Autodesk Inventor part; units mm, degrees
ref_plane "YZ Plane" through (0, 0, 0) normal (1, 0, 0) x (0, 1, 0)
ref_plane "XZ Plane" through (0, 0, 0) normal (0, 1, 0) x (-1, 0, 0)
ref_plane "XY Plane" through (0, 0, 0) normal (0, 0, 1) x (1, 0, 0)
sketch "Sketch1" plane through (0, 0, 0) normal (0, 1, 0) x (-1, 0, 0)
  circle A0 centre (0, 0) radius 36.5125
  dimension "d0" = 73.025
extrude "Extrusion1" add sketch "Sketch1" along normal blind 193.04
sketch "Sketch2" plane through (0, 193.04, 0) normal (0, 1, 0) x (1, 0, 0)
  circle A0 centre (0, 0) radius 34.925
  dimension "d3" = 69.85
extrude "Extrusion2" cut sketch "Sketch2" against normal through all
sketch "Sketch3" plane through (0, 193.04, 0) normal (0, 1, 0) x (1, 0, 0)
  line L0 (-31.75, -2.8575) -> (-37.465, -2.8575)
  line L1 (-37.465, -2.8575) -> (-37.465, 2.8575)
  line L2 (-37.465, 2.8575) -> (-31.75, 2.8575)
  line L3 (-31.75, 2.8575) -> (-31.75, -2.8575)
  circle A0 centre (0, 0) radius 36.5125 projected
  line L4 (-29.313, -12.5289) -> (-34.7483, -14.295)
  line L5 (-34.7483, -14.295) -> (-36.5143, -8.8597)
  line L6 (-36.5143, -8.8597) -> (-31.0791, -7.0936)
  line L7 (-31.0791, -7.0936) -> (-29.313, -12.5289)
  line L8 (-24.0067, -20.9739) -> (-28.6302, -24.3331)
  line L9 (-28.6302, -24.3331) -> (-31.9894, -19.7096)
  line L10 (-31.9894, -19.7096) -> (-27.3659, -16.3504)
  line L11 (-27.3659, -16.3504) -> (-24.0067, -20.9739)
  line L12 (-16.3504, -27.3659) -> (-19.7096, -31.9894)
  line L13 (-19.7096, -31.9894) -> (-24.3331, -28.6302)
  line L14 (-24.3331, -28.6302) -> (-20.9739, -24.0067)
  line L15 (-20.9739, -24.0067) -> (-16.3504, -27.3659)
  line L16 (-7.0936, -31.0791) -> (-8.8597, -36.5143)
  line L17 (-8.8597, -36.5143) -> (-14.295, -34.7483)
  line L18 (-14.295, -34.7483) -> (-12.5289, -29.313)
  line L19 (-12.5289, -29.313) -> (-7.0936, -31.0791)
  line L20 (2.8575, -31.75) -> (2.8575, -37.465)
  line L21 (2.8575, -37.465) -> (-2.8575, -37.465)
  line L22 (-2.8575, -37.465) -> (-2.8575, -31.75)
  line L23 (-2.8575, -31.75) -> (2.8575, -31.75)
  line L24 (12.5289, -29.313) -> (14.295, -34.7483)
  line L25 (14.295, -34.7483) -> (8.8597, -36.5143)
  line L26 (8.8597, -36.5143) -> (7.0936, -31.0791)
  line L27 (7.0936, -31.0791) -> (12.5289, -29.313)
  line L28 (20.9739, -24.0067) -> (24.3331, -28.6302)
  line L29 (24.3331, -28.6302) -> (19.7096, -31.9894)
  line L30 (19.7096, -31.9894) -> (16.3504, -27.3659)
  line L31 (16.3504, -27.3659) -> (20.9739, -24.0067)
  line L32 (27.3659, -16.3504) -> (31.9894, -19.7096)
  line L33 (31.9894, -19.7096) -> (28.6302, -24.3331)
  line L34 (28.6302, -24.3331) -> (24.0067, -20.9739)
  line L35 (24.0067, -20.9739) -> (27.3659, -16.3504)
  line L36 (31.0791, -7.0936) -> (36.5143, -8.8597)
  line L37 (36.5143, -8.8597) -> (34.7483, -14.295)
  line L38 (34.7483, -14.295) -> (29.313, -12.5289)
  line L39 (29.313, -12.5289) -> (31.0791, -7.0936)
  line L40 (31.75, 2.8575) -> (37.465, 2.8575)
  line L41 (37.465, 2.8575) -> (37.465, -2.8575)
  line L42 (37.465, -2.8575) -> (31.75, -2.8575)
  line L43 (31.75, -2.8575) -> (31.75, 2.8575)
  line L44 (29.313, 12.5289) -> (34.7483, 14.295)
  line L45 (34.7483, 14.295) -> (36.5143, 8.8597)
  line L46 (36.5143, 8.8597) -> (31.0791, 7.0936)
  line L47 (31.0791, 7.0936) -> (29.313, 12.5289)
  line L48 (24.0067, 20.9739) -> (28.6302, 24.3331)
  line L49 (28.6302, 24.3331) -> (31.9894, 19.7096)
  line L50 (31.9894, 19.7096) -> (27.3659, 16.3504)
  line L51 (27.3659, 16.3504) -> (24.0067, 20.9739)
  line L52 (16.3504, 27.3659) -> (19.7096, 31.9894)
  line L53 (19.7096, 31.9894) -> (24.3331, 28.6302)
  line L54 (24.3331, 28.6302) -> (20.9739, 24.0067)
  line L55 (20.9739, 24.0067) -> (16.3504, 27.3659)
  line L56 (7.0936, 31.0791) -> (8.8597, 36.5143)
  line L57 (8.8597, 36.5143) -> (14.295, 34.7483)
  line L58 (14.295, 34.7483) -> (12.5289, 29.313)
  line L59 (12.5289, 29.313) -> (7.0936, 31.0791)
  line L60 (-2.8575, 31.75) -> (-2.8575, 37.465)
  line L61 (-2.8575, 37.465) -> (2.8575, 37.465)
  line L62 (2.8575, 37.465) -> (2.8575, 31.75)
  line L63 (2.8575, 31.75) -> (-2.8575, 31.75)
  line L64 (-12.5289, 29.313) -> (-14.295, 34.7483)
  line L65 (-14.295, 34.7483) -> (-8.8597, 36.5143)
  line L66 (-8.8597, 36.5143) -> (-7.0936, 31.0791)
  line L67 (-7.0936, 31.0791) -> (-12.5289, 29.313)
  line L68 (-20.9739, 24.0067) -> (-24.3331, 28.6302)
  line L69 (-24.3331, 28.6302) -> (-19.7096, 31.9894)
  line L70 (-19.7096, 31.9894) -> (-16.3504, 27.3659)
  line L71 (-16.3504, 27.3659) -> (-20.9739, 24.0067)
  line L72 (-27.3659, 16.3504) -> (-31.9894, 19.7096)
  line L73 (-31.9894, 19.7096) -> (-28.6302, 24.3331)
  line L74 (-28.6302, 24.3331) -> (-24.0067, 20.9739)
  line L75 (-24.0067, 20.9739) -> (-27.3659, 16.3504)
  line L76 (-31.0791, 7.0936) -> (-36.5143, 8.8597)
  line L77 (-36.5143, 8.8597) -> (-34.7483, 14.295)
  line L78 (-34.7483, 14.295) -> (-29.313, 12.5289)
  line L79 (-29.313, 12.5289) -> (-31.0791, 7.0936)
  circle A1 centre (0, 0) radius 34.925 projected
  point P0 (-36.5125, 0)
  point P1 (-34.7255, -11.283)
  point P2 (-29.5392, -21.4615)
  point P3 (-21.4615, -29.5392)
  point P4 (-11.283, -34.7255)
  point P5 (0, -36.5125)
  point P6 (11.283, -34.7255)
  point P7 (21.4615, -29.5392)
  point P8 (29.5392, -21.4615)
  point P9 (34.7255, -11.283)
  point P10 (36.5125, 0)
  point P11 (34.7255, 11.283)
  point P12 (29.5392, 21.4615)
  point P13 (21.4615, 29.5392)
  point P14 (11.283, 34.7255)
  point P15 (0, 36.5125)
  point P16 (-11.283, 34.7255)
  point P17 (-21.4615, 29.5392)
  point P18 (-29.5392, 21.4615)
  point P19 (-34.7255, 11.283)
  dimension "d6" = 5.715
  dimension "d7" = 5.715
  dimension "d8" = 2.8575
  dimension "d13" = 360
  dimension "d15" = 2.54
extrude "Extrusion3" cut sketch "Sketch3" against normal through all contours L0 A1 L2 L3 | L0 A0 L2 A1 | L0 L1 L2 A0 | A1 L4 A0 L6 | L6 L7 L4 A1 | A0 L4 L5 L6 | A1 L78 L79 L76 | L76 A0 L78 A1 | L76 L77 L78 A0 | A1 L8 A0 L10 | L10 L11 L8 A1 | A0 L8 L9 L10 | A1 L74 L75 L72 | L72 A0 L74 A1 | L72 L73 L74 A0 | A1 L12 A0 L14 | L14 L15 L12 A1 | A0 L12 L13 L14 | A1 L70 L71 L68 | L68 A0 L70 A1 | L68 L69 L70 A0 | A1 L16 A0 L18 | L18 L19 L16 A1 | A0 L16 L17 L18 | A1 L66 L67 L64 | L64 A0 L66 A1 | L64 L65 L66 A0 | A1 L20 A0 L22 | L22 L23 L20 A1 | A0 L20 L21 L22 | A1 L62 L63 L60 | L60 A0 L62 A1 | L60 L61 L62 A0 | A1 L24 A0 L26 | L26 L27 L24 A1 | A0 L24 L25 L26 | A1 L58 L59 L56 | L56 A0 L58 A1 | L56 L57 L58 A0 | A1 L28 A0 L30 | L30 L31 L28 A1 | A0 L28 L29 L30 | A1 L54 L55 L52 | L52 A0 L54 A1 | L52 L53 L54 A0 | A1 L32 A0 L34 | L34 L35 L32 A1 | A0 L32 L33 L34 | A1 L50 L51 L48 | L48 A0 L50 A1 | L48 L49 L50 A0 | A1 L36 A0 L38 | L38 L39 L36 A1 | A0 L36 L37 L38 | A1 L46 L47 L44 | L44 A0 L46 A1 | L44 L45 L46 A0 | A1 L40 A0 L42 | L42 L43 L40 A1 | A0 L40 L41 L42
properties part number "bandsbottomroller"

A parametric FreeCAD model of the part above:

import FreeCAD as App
import Part
import Sketcher
Q = App.Units.Quantity

doc = App.newDocument("Part")
body = doc.addObject("PartDesign::Body", "Body")
body.AllowCompound = True

# Sketch on XZ plane
sketch1 = body.newObject("Sketcher::SketchObject", "Sketch")
sketch1.AttachmentSupport = (doc.getObject("XZ_Plane"), [""])
sketch1.MapMode = "FlatFace"
sketch1.addGeometry(Part.Circle(App.Vector(0, 0, 0), App.Vector(0, 0, 1), 37), False)
sketch1.addConstraint([
    Sketcher.Constraint("Coincident", 0, 3, -1, 1),
    Sketcher.Constraint("Diameter", 0, Q("2.875 in")),
])
pad1 = body.newObject("PartDesign::Pad", "Pad")
pad1.Profile = sketch1
pad1.Length = Q("7.6 in")
pad1.Reversed = True

# Sketch on XZ plane
sketch2 = body.newObject("Sketcher::SketchObject", "Sketch001")
sketch2.AttachmentSupport = (doc.getObject("XZ_Plane"), [""])
sketch2.MapMode = "FlatFace"
sketch2.AttachmentOffset = App.Placement(App.Vector(0, 0, -7.6 * 25.4), App.Rotation())
sketch2.addGeometry(Part.Circle(App.Vector(0, 0, 0), App.Vector(0, 0, 1), 35), False)
sketch2.addConstraint([
    Sketcher.Constraint("Coincident", 0, 3, -1, 1),
    Sketcher.Constraint("Diameter", 0, Q("2.75 in")),
])
pocket1 = body.newObject("PartDesign::Pocket", "Pocket")
pocket1.Profile = sketch2
pocket1.Type = "ThroughAll"
pocket1.Reversed = True

# Sketch on XZ plane
sketch3 = body.newObject("Sketcher::SketchObject", "Sketch002")
sketch3.AttachmentSupport = (doc.getObject("XZ_Plane"), [""])
sketch3.MapMode = "FlatFace"
sketch3.AttachmentOffset = App.Placement(App.Vector(0, 0, -7.6 * 25.4), App.Rotation())
sketch3.addGeometry([
    Part.LineSegment(App.Vector(-32, 3, 0), App.Vector(-32, -3, 0)),  # 0
    Part.LineSegment(App.Vector(-32, -3, 0), App.Vector(-37, -3, 0)),  # 1
    Part.LineSegment(App.Vector(-37, -3, 0), App.Vector(-37, 3, 0)),  # 2
    Part.LineSegment(App.Vector(-37, 3, 0), App.Vector(-32, 3, 0)),  # 3
    Part.LineSegment(App.Vector(-29, 13, 0), App.Vector(-31, 7, 0)),  # 4
    Part.LineSegment(App.Vector(-31, 7, 0), App.Vector(-37, 9, 0)),  # 5
    Part.LineSegment(App.Vector(-37, 9, 0), App.Vector(-35, 14, 0)),  # 6
    Part.LineSegment(App.Vector(-35, 14, 0), App.Vector(-29, 13, 0)),  # 7
    Part.LineSegment(App.Vector(-29, -13, 0), App.Vector(-35, -14, 0)),  # 8
    Part.LineSegment(App.Vector(-35, -14, 0), App.Vector(-37, -9, 0)),  # 9
    Part.LineSegment(App.Vector(-37, -9, 0), App.Vector(-31, -7, 0)),  # 10
    Part.LineSegment(App.Vector(-31, -7, 0), App.Vector(-29, -13, 0)),  # 11
    Part.LineSegment(App.Vector(-24, 21, 0), App.Vector(-27, 16, 0)),  # 12
    Part.LineSegment(App.Vector(-27, 16, 0), App.Vector(-32, 20, 0)),  # 13
    Part.LineSegment(App.Vector(-32, 20, 0), App.Vector(-29, 24, 0)),  # 14
    Part.LineSegment(App.Vector(-29, 24, 0), App.Vector(-24, 21, 0)),  # 15
    Part.LineSegment(App.Vector(-24, -21, 0), App.Vector(-29, -24, 0)),  # 16
    Part.LineSegment(App.Vector(-29, -24, 0), App.Vector(-32, -20, 0)),  # 17
    Part.LineSegment(App.Vector(-32, -20, 0), App.Vector(-27, -16, 0)),  # 18
    Part.LineSegment(App.Vector(-27, -16, 0), App.Vector(-24, -21, 0)),  # 19
    Part.LineSegment(App.Vector(-16, 27, 0), App.Vector(-21, 24, 0)),  # 20
    Part.LineSegment(App.Vector(-21, 24, 0), App.Vector(-24, 29, 0)),  # 21
    Part.LineSegment(App.Vector(-24, 29, 0), App.Vector(-20, 32, 0)),  # 22
    Part.LineSegment(App.Vector(-20, 32, 0), App.Vector(-16, 27, 0)),  # 23
    Part.LineSegment(App.Vector(-16, -27, 0), App.Vector(-20, -32, 0)),  # 24
    Part.LineSegment(App.Vector(-20, -32, 0), App.Vector(-24, -29, 0)),  # 25
    Part.LineSegment(App.Vector(-24, -29, 0), App.Vector(-21, -24, 0)),  # 26
    Part.LineSegment(App.Vector(-21, -24, 0), App.Vector(-16, -27, 0)),  # 27
    Part.LineSegment(App.Vector(-7, 31, 0), App.Vector(-13, 29, 0)),  # 28
    Part.LineSegment(App.Vector(-13, 29, 0), App.Vector(-14, 35, 0)),  # 29
    Part.LineSegment(App.Vector(-14, 35, 0), App.Vector(-9, 37, 0)),  # 30
    Part.LineSegment(App.Vector(-9, 37, 0), App.Vector(-7, 31, 0)),  # 31
    Part.LineSegment(App.Vector(-7, -31, 0), App.Vector(-9, -37, 0)),  # 32
    Part.LineSegment(App.Vector(-9, -37, 0), App.Vector(-14, -35, 0)),  # 33
    Part.LineSegment(App.Vector(-14, -35, 0), App.Vector(-13, -29, 0)),  # 34
    Part.LineSegment(App.Vector(-13, -29, 0), App.Vector(-7, -31, 0)),  # 35
    Part.LineSegment(App.Vector(3, 32, 0), App.Vector(-3, 32, 0)),  # 36
    Part.LineSegment(App.Vector(-3, 32, 0), App.Vector(-3, 37, 0)),  # 37
    Part.LineSegment(App.Vector(-3, 37, 0), App.Vector(3, 37, 0)),  # 38
    Part.LineSegment(App.Vector(3, 37, 0), App.Vector(3, 32, 0)),  # 39
    Part.LineSegment(App.Vector(3, -32, 0), App.Vector(3, -37, 0)),  # 40
    Part.LineSegment(App.Vector(3, -37, 0), App.Vector(-3, -37, 0)),  # 41
    Part.LineSegment(App.Vector(-3, -37, 0), App.Vector(-3, -32, 0)),  # 42
    Part.LineSegment(App.Vector(-3, -32, 0), App.Vector(3, -32, 0)),  # 43
    Part.LineSegment(App.Vector(13, 29, 0), App.Vector(7, 31, 0)),  # 44
    Part.LineSegment(App.Vector(7, 31, 0), App.Vector(9, 37, 0)),  # 45
    Part.LineSegment(App.Vector(9, 37, 0), App.Vector(14, 35, 0)),  # 46
    Part.LineSegment(App.Vector(14, 35, 0), App.Vector(13, 29, 0)),  # 47
    Part.LineSegment(App.Vector(13, -29, 0), App.Vector(14, -35, 0)),  # 48
    Part.LineSegment(App.Vector(14, -35, 0), App.Vector(9, -37, 0)),  # 49
    Part.LineSegment(App.Vector(9, -37, 0), App.Vector(7, -31, 0)),  # 50
    Part.LineSegment(App.Vector(7, -31, 0), App.Vector(13, -29, 0)),  # 51
    Part.LineSegment(App.Vector(21, 24, 0), App.Vector(16, 27, 0)),  # 52
    Part.LineSegment(App.Vector(16, 27, 0), App.Vector(20, 32, 0)),  # 53
    Part.LineSegment(App.Vector(20, 32, 0), App.Vector(24, 29, 0)),  # 54
    Part.LineSegment(App.Vector(24, 29, 0), App.Vector(21, 24, 0)),  # 55
    Part.LineSegment(App.Vector(21, -24, 0), App.Vector(24, -29, 0)),  # 56
    Part.LineSegment(App.Vector(24, -29, 0), App.Vector(20, -32, 0)),  # 57
    Part.LineSegment(App.Vector(20, -32, 0), App.Vector(16, -27, 0)),  # 58
    Part.LineSegment(App.Vector(16, -27, 0), App.Vector(21, -24, 0)),  # 59
    Part.LineSegment(App.Vector(27, 16, 0), App.Vector(24, 21, 0)),  # 60
    Part.LineSegment(App.Vector(24, 21, 0), App.Vector(29, 24, 0)),  # 61
    Part.LineSegment(App.Vector(29, 24, 0), App.Vector(32, 20, 0)),  # 62
    Part.LineSegment(App.Vector(32, 20, 0), App.Vector(27, 16, 0)),  # 63
    Part.LineSegment(App.Vector(27, -16, 0), App.Vector(32, -20, 0)),  # 64
    Part.LineSegment(App.Vector(32, -20, 0), App.Vector(29, -24, 0)),  # 65
    Part.LineSegment(App.Vector(29, -24, 0), App.Vector(24, -21, 0)),  # 66
    Part.LineSegment(App.Vector(24, -21, 0), App.Vector(27, -16, 0)),  # 67
    Part.LineSegment(App.Vector(31, 7, 0), App.Vector(29, 13, 0)),  # 68
    Part.LineSegment(App.Vector(29, 13, 0), App.Vector(35, 14, 0)),  # 69
    Part.LineSegment(App.Vector(35, 14, 0), App.Vector(37, 9, 0)),  # 70
    Part.LineSegment(App.Vector(37, 9, 0), App.Vector(31, 7, 0)),  # 71
    Part.LineSegment(App.Vector(31, -7, 0), App.Vector(37, -9, 0)),  # 72
    Part.LineSegment(App.Vector(37, -9, 0), App.Vector(35, -14, 0)),  # 73
    Part.LineSegment(App.Vector(35, -14, 0), App.Vector(29, -13, 0)),  # 74
    Part.LineSegment(App.Vector(29, -13, 0), App.Vector(31, -7, 0)),  # 75
    Part.LineSegment(App.Vector(32, -3, 0), App.Vector(32, 3, 0)),  # 76
    Part.LineSegment(App.Vector(32, 3, 0), App.Vector(37, 3, 0)),  # 77
    Part.LineSegment(App.Vector(37, 3, 0), App.Vector(37, -3, 0)),  # 78
    Part.LineSegment(App.Vector(37, -3, 0), App.Vector(32, -3, 0)),  # 79
], False)
sketch3.addConstraint([
    Sketcher.Constraint("Coincident", 0, 2, 1, 1),
    Sketcher.Constraint("Coincident", 1, 2, 2, 1),
    Sketcher.Constraint("Coincident", 2, 2, 3, 1),
    Sketcher.Constraint("Coincident", 3, 2, 0, 1),
    Sketcher.Constraint("Coincident", 4, 2, 5, 1),
    Sketcher.Constraint("Coincident", 5, 2, 6, 1),
    Sketcher.Constraint("Coincident", 6, 2, 7, 1),
    Sketcher.Constraint("Coincident", 7, 2, 4, 1),
    Sketcher.Constraint("Coincident", 8, 2, 9, 1),
    Sketcher.Constraint("Coincident", 9, 2, 10, 1),
    Sketcher.Constraint("Coincident", 10, 2, 11, 1),
    Sketcher.Constraint("Coincident", 11, 2, 8, 1),
    Sketcher.Constraint("Coincident", 12, 2, 13, 1),
    Sketcher.Constraint("Coincident", 13, 2, 14, 1),
    Sketcher.Constraint("Coincident", 14, 2, 15, 1),
    Sketcher.Constraint("Coincident", 15, 2, 12, 1),
    Sketcher.Constraint("Coincident", 16, 2, 17, 1),
    Sketcher.Constraint("Coincident", 17, 2, 18, 1),
    Sketcher.Constraint("Coincident", 18, 2, 19, 1),
    Sketcher.Constraint("Coincident", 19, 2, 16, 1),
    Sketcher.Constraint("Coincident", 20, 2, 21, 1),
    Sketcher.Constraint("Coincident", 21, 2, 22, 1),
    Sketcher.Constraint("Coincident", 22, 2, 23, 1),
    Sketcher.Constraint("Coincident", 23, 2, 20, 1),
    Sketcher.Constraint("Coincident", 24, 2, 25, 1),
    Sketcher.Constraint("Coincident", 25, 2, 26, 1),
    Sketcher.Constraint("Coincident", 26, 2, 27, 1),
    Sketcher.Constraint("Coincident", 27, 2, 24, 1),
    Sketcher.Constraint("Coincident", 28, 2, 29, 1),
    Sketcher.Constraint("Coincident", 29, 2, 30, 1),
    Sketcher.Constraint("Coincident", 30, 2, 31, 1),
    Sketcher.Constraint("Coincident", 31, 2, 28, 1),
    Sketcher.Constraint("Coincident", 32, 2, 33, 1),
    Sketcher.Constraint("Coincident", 33, 2, 34, 1),
    Sketcher.Constraint("Coincident", 34, 2, 35, 1),
    Sketcher.Constraint("Coincident", 35, 2, 32, 1),
    Sketcher.Constraint("Coincident", 36, 2, 37, 1),
    Sketcher.Constraint("Coincident", 37, 2, 38, 1),
    Sketcher.Constraint("Coincident", 38, 2, 39, 1),
    Sketcher.Constraint("Coincident", 39, 2, 36, 1),
    Sketcher.Constraint("Coincident", 40, 2, 41, 1),
    Sketcher.Constraint("Coincident", 41, 2, 42, 1),
    Sketcher.Constraint("Coincident", 42, 2, 43, 1),
    Sketcher.Constraint("Coincident", 43, 2, 40, 1),
    Sketcher.Constraint("Coincident", 44, 2, 45, 1),
    Sketcher.Constraint("Coincident", 45, 2, 46, 1),
    Sketcher.Constraint("Coincident", 46, 2, 47, 1),
    Sketcher.Constraint("Coincident", 47, 2, 44, 1),
    Sketcher.Constraint("Coincident", 48, 2, 49, 1),
    Sketcher.Constraint("Coincident", 49, 2, 50, 1),
    Sketcher.Constraint("Coincident", 50, 2, 51, 1),
    Sketcher.Constraint("Coincident", 51, 2, 48, 1),
    Sketcher.Constraint("Coincident", 52, 2, 53, 1),
    Sketcher.Constraint("Coincident", 53, 2, 54, 1),
    Sketcher.Constraint("Coincident", 54, 2, 55, 1),
    Sketcher.Constraint("Coincident", 55, 2, 52, 1),
    Sketcher.Constraint("Coincident", 56, 2, 57, 1),
    Sketcher.Constraint("Coincident", 57, 2, 58, 1),
    Sketcher.Constraint("Coincident", 58, 2, 59, 1),
    Sketcher.Constraint("Coincident", 59, 2, 56, 1),
    Sketcher.Constraint("Coincident", 60, 2, 61, 1),
    Sketcher.Constraint("Coincident", 61, 2, 62, 1),
    Sketcher.Constraint("Coincident", 62, 2, 63, 1),
    Sketcher.Constraint("Coincident", 63, 2, 60, 1),
    Sketcher.Constraint("Coincident", 64, 2, 65, 1),
    Sketcher.Constraint("Coincident", 65, 2, 66, 1),
    Sketcher.Constraint("Coincident", 66, 2, 67, 1),
    Sketcher.Constraint("Coincident", 67, 2, 64, 1),
    Sketcher.Constraint("Coincident", 68, 2, 69, 1),
    Sketcher.Constraint("Coincident", 69, 2, 70, 1),
    Sketcher.Constraint("Coincident", 70, 2, 71, 1),
    Sketcher.Constraint("Coincident", 71, 2, 68, 1),
    Sketcher.Constraint("Coincident", 72, 2, 73, 1),
    Sketcher.Constraint("Coincident", 73, 2, 74, 1),
    Sketcher.Constraint("Coincident", 74, 2, 75, 1),
    Sketcher.Constraint("Coincident", 75, 2, 72, 1),
    Sketcher.Constraint("Coincident", 76, 2, 77, 1),
    Sketcher.Constraint("Coincident", 77, 2, 78, 1),
    Sketcher.Constraint("Coincident", 78, 2, 79, 1),
    Sketcher.Constraint("Coincident", 79, 2, 76, 1),
    Sketcher.Constraint("Vertical", 0),
    Sketcher.Constraint("Horizontal", 1),
    Sketcher.Constraint("Vertical", 2),
    Sketcher.Constraint("Horizontal", 3),
    Sketcher.Constraint("Horizontal", 36),
    Sketcher.Constraint("Vertical", 37),
    Sketcher.Constraint("Horizontal", 38),
    Sketcher.Constraint("Vertical", 39),
    Sketcher.Constraint("Vertical", 40),
    Sketcher.Constraint("Horizontal", 41),
    Sketcher.Constraint("Vertical", 42),
    Sketcher.Constraint("Horizontal", 43),
    Sketcher.Constraint("Vertical", 76),
    Sketcher.Constraint("Horizontal", 77),
    Sketcher.Constraint("Vertical", 78),
    Sketcher.Constraint("Horizontal", 79),
    Sketcher.Constraint("Symmetric", 37, 2, 40, 2, -1, 1),
    Sketcher.Constraint("Symmetric", 39, 2, 42, 2, -1, 1),
    Sketcher.Constraint("Symmetric", 35, 2, 44, 2, -1, 1),
    Sketcher.Constraint("Symmetric", 32, 2, 45, 2, -1, 1),
    Sketcher.Constraint("Symmetric", 33, 2, 46, 2, -1, 1),
    Sketcher.Constraint("Symmetric", 34, 2, 47, 2, -1, 1),
    Sketcher.Constraint("Symmetric", 29, 2, 48, 2, -1, 1),
    Sketcher.Constraint("Symmetric", 30, 2, 49, 2, -1, 1),
    Sketcher.Constraint("Symmetric", 31, 2, 50, 2, -1, 1),
    Sketcher.Constraint("Symmetric", 28, 2, 51, 2, -1, 1),
    Sketcher.Constraint("Symmetric", 27, 2, 52, 2, -1, 1),
    Sketcher.Constraint("Symmetric", 24, 2, 53, 2, -1, 1),
    Sketcher.Constraint("Symmetric", 25, 2, 54, 2, -1, 1),
    Sketcher.Constraint("Symmetric", 26, 2, 55, 2, -1, 1),
    Sketcher.Constraint("Symmetric", 21, 2, 56, 2, -1, 1),
    Sketcher.Constraint("Symmetric", 22, 2, 57, 2, -1, 1),
    Sketcher.Constraint("Symmetric", 23, 2, 58, 2, -1, 1),
    Sketcher.Constraint("Symmetric", 20, 2, 59, 2, -1, 1),
    Sketcher.Constraint("Symmetric", 19, 2, 60, 2, -1, 1),
    Sketcher.Constraint("Symmetric", 16, 2, 61, 2, -1, 1),
    Sketcher.Constraint("Symmetric", 17, 2, 62, 2, -1, 1),
    Sketcher.Constraint("Symmetric", 18, 2, 63, 2, -1, 1),
    Sketcher.Constraint("Symmetric", 13, 2, 64, 2, -1, 1),
    Sketcher.Constraint("Symmetric", 14, 2, 65, 2, -1, 1),
    Sketcher.Constraint("Symmetric", 15, 2, 66, 2, -1, 1),
    Sketcher.Constraint("Symmetric", 12, 2, 67, 2, -1, 1),
    Sketcher.Constraint("Symmetric", 11, 2, 68, 2, -1, 1),
    Sketcher.Constraint("Symmetric", 8, 2, 69, 2, -1, 1),
    Sketcher.Constraint("Symmetric", 9, 2, 70, 2, -1, 1),
    Sketcher.Constraint("Symmetric", 10, 2, 71, 2, -1, 1),
    Sketcher.Constraint("Symmetric", 5, 2, 72, 2, -1, 1),
    Sketcher.Constraint("Symmetric", 6, 2, 73, 2, -1, 1),
    Sketcher.Constraint("Symmetric", 7, 2, 74, 2, -1, 1),
    Sketcher.Constraint("Symmetric", 4, 2, 75, 2, -1, 1),
    Sketcher.Constraint("Symmetric", 0, 2, 76, 2, -1, 1),
    Sketcher.Constraint("Symmetric", 2, 2, 78, 2, -1, 1),
    Sketcher.Constraint("Symmetric", 31, 2, 44, 2, -2),
    Sketcher.Constraint("Symmetric", 30, 2, 45, 2, -2),
    Sketcher.Constraint("Symmetric", 29, 2, 46, 2, -2),
    Sketcher.Constraint("Symmetric", 28, 2, 47, 2, -2),
    Sketcher.Constraint("Symmetric", 23, 2, 52, 2, -2),
    Sketcher.Constraint("Symmetric", 22, 2, 53, 2, -2),
    Sketcher.Constraint("Symmetric", 21, 2, 54, 2, -2),
    Sketcher.Constraint("Symmetric", 20, 2, 55, 2, -2),
    Sketcher.Constraint("Symmetric", 15, 2, 60, 2, -2),
    Sketcher.Constraint("Symmetric", 14, 2, 61, 2, -2),
    Sketcher.Constraint("Symmetric", 13, 2, 62, 2, -2),
    Sketcher.Constraint("Symmetric", 12, 2, 63, 2, -2),
    Sketcher.Constraint("Symmetric", 7, 2, 68, 2, -2),
    Sketcher.Constraint("Symmetric", 6, 2, 69, 2, -2),
    Sketcher.Constraint("Symmetric", 5, 2, 70, 2, -2),
    Sketcher.Constraint("Symmetric", 4, 2, 71, 2, -2),
    Sketcher.Constraint("Perpendicular", 4, 5),
    Sketcher.Constraint("Perpendicular", 5, 6),
    Sketcher.Constraint("Perpendicular", 6, 7),
    Sketcher.Constraint("Perpendicular", 12, 13),
    Sketcher.Constraint("Perpendicular", 13, 14),
    Sketcher.Constraint("Perpendicular", 14, 15),
    Sketcher.Constraint("Perpendicular", 19, 20),
    Sketcher.Constraint("Perpendicular", 20, 21),
    Sketcher.Constraint("Perpendicular", 21, 22),
    Sketcher.Constraint("Perpendicular", 22, 23),
    Sketcher.Constraint("Perpendicular", 11, 28),
    Sketcher.Constraint("Perpendicular", 28, 29),
    Sketcher.Constraint("Perpendicular", 29, 30),
    Sketcher.Constraint("Perpendicular", 30, 31),
    Sketcher.Constraint("Horizontal", 3, 2, 76, 2),
    Sketcher.Constraint("Vertical", 39, 2, 40, 2),
    Sketcher.Constraint("Equal", 3, 36),
    Sketcher.Constraint("Equal", 79, 0),
    Sketcher.Constraint("Equal", 2, 37),
    Sketcher.Constraint("Equal", 4, 5),
    Sketcher.Constraint("Equal", 11, 12),
    Sketcher.Constraint("Equal", 12, 13),
    Sketcher.Constraint("Equal", 19, 20),
    Sketcher.Constraint("Equal", 20, 21),
    Sketcher.Constraint("Equal", 27, 28),
    Sketcher.Constraint("Equal", 28, 29),
    Sketcher.Constraint("DistanceX", 1, 2, 1, 1, Q("0.225 in")),
    Sketcher.Constraint("Distance", 4, Q("0.225 in")),
    Sketcher.Constraint("Angle", 4, Q("-108.0006 deg")),
    Sketcher.Constraint("Angle", 12, Q("-126.0002 deg")),
    Sketcher.Constraint("DistanceX", 0, 2, -1, 1, Q("1.25 in")),
    Sketcher.Constraint("DistanceY", -1, 1, 36, 2, Q("1.25 in")),
    Sketcher.Constraint("DistanceY", -1, 1, 14, 2, Q("0.958 in")),
    Sketcher.Constraint("DistanceX", 21, 2, -1, 1, Q("0.958 in")),
    Sketcher.Constraint("DistanceY", -1, 1, 5, 2, Q("0.3488 in")),
    Sketcher.Constraint("DistanceX", 12, 2, -1, 1, Q("1.0774 in")),
    Sketcher.Constraint("DistanceY", -1, 1, 23, 2, Q("1.0774 in")),
    Sketcher.Constraint("DistanceX", 29, 2, -1, 1, Q("0.5628 in")),
    Sketcher.Constraint("DistanceX", 4, 2, -1, 1, Q("31.079 mm")),
    Sketcher.Constraint("DistanceY", -1, 1, 28, 2, Q("29.313 mm")),
])
pocket2 = body.newObject("PartDesign::Pocket", "Pocket001")
pocket2.Profile = sketch3
pocket2.Type = "ThroughAll"
pocket2.Reversed = True

doc.recompute()
